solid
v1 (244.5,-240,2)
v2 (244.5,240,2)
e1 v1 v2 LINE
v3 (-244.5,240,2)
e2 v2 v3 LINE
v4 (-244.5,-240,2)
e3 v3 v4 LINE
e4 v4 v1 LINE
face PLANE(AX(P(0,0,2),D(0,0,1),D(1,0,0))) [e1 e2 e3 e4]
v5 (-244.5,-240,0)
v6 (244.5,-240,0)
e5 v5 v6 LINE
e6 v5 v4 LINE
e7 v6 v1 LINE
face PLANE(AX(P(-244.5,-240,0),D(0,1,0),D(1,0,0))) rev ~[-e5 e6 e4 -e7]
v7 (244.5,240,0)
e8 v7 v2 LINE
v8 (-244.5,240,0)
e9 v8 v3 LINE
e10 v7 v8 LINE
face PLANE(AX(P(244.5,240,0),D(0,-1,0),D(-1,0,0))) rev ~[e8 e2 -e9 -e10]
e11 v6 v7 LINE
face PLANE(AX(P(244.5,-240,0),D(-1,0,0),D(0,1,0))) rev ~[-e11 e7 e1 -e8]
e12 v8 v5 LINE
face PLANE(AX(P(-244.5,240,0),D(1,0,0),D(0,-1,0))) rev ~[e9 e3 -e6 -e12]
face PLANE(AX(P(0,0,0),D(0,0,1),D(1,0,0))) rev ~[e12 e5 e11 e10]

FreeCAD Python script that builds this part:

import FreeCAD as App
import Part
import Sketcher
from FreeCAD import Vector

doc = App.newDocument("Part")
body = doc.addObject("PartDesign::Body", "Body")

# Sketch on XY plane
sketch1 = doc.addObject("Sketcher::SketchObject", "Sketch")
body.addObject(sketch1)
sketch1.AttachmentSupport = (doc.XY_Plane, [""])
sketch1.MapMode = "FlatFace"
sketch1.addGeometry([
    Part.LineSegment(Vector(-244, 240, 0), Vector(-244, -240, 0)),
    Part.LineSegment(Vector(-244, -240, 0), Vector(244, -240, 0)),
    Part.LineSegment(Vector(244, -240, 0), Vector(244, 240, 0)),
    Part.LineSegment(Vector(244, 240, 0), Vector(-244, 240, 0)),
], False)
sketch1.addConstraint([
    Sketcher.Constraint("Coincident", 0, 2, 1, 1),
    Sketcher.Constraint("Coincident", 1, 2, 2, 1),
    Sketcher.Constraint("Coincident", 2, 2, 3, 1),
    Sketcher.Constraint("Coincident", 3, 2, 0, 1),
    Sketcher.Constraint("Vertical", 0),
    Sketcher.Constraint("Horizontal", 1),
    Sketcher.Constraint("Vertical", 2),
    Sketcher.Constraint("Horizontal", 3),
    Sketcher.Constraint("Symmetric", 0, 2, 2, 2, -1, 1),
    Sketcher.Constraint("DistanceX", 1, 1, 1, 2, 489.0),
    Sketcher.Constraint("DistanceY", 0, 2, 0, 1, 480.0),
])
pad1 = doc.addObject("PartDesign::Pad", "Pad")
body.addObject(pad1)
pad1.Profile = sketch1
pad1.Length = 2

doc.recompute()
